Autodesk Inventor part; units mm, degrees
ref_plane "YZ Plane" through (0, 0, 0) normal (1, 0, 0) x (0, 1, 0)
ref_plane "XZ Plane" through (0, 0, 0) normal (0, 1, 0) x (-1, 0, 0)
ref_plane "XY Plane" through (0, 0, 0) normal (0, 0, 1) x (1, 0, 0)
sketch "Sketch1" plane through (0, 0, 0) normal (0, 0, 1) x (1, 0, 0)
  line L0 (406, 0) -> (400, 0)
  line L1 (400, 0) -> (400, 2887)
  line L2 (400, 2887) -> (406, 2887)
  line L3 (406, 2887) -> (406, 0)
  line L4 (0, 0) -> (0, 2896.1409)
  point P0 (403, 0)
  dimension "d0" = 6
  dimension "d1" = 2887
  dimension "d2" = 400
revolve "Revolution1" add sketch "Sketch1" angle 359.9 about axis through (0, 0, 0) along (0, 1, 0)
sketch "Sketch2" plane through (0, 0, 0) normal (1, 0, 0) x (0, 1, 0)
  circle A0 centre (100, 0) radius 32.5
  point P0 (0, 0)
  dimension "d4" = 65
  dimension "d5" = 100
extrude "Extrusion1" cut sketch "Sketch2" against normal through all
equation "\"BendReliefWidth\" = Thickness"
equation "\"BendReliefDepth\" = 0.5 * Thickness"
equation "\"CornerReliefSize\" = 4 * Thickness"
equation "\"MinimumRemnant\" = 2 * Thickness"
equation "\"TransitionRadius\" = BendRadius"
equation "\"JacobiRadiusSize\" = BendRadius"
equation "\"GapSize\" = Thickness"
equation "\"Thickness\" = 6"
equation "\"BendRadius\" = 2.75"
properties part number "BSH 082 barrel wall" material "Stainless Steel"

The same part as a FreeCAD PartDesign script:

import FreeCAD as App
import Part
import Sketcher
from FreeCAD import Vector

doc = App.newDocument("Part")
body = doc.addObject("PartDesign::Body", "Body")

# Sketch on XY plane
sketch1 = body.newObject("Sketcher::SketchObject", "Sketch")
sketch1.AttachmentSupport = (doc.getObject("XY_Plane"), [""])
sketch1.MapMode = "FlatFace"
sketch1.addGeometry(Part.LineSegment(Vector(400, 0, 0), Vector(406, 0, 0)), False)
sketch1.addGeometry(Part.LineSegment(Vector(406, 0, 0), Vector(406, 2887, 0)), False)
sketch1.addGeometry(Part.LineSegment(Vector(406, 2887, 0), Vector(400, 2887, 0)), False)
sketch1.addGeometry(Part.LineSegment(Vector(400, 2887, 0), Vector(400, 0, 0)), False)
sketch1.addConstraint(Sketcher.Constraint("Coincident", 0, 2, 1, 1))
sketch1.addConstraint(Sketcher.Constraint("Coincident", 1, 2, 2, 1))
sketch1.addConstraint(Sketcher.Constraint("Coincident", 2, 2, 3, 1))
sketch1.addConstraint(Sketcher.Constraint("Coincident", 3, 2, 0, 1))
sketch1.addConstraint(Sketcher.Constraint("Horizontal", 0))
sketch1.addConstraint(Sketcher.Constraint("Vertical", 1))
sketch1.addConstraint(Sketcher.Constraint("Horizontal", 2))
sketch1.addConstraint(Sketcher.Constraint("Vertical", 3))
sketch1.addConstraint(Sketcher.Constraint("PointOnObject", 0, 2, -1))
sketch1.addConstraint(Sketcher.Constraint("DistanceX", 0, 1, 0, 2, 6.0))
sketch1.addConstraint(Sketcher.Constraint("DistanceY", 1, 1, 1, 2, 2887.0))
sketch1.addConstraint(Sketcher.Constraint("DistanceX", -1, 1, 2, 2, 400.0))
revolution = body.newObject("PartDesign::Revolution", "Revolution")
revolution.Profile = sketch1
revolution.ReferenceAxis = (sketch1, ["V_Axis"])
revolution.Angle = 359.9

# Sketch on YZ plane
sketch2 = body.newObject("Sketcher::SketchObject", "Sketch001")
sketch2.AttachmentSupport = (doc.getObject("YZ_Plane"), [""])
sketch2.MapMode = "FlatFace"
sketch2.addGeometry(Part.Circle(Vector(100, 0, 0), Vector(0, 0, 1), 32), False)
sketch2.addConstraint(Sketcher.Constraint("PointOnObject", 0, 3, -1))
sketch2.addConstraint(Sketcher.Constraint("Diameter", 0, 65.0))
sketch2.addConstraint(Sketcher.Constraint("DistanceX", -1, 1, 0, 3, 100.0))
pocket1 = body.newObject("PartDesign::Pocket", "Pocket")
pocket1.Profile = sketch2
pocket1.Type = "ThroughAll"

doc.recompute()
